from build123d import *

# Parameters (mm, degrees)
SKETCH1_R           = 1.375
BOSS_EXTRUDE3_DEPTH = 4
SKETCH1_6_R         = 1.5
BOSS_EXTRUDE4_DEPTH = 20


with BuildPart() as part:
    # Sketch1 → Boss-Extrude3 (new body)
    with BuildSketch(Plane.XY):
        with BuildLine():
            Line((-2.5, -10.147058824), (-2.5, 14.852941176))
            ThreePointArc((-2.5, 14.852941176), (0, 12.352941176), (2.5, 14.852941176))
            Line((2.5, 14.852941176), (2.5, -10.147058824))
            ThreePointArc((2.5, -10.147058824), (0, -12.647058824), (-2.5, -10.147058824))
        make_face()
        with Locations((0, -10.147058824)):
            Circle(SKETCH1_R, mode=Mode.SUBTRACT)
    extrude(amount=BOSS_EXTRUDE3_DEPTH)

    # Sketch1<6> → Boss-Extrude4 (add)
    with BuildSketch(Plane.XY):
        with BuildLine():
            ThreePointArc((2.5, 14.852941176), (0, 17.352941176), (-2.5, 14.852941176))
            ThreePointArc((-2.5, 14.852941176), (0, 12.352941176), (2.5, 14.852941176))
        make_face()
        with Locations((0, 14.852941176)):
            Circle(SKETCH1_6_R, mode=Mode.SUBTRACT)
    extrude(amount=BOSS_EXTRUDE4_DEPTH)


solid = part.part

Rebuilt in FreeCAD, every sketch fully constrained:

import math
import FreeCAD as App
import Part
import Sketcher

doc = App.newDocument("Part")
body = doc.addObject("PartDesign::Body", "Body")

# Sketch on XY plane
sketch1 = doc.addObject("Sketcher::SketchObject", "Sketch")
body.addObject(sketch1)
sketch1.AttachmentSupport = (doc.XY_Plane, [""])
sketch1.MapMode = "FlatFace"
sketch1.addGeometry(Part.LineSegment(App.Vector(-2.5, 14.9, 0), App.Vector(-2.5, -10.1, 0)), False)
sketch1.addGeometry(Part.ArcOfCircle(Part.Circle(App.Vector(0, -10.1, 0), App.Vector(0, 0, 1), 2.5), math.radians(180), math.radians(360)), False)
sketch1.addGeometry(Part.LineSegment(App.Vector(2.5, -10.1, 0), App.Vector(2.5, 14.9, 0)), False)
sketch1.addGeometry(Part.ArcOfCircle(Part.Circle(App.Vector(0, 14.9, 0), App.Vector(0, 0, 1), 2.5), math.radians(180), math.radians(360)), False)
sketch1.addGeometry(Part.Circle(App.Vector(0, -10.1, 0), App.Vector(0, 0, 1), 1.4), False)
sketch1.addConstraint(Sketcher.Constraint("Tangent", 0, 2, 1, 1))
sketch1.addConstraint(Sketcher.Constraint("Tangent", 1, 2, 2, 1))
sketch1.addConstraint(Sketcher.Constraint("Tangent", 2, 2, 3, 2))
sketch1.addConstraint(Sketcher.Constraint("Tangent", 3, 1, 0, 1))
sketch1.addConstraint(Sketcher.Constraint("Vertical", 0))
sketch1.addConstraint(Sketcher.Constraint("Vertical", 2))
sketch1.addConstraint(Sketcher.Constraint("Coincident", 4, 3, 1, 3))
sketch1.addConstraint(Sketcher.Constraint("PointOnObject", 1, 3, -2))
sketch1.addConstraint(Sketcher.Constraint("Radius", 1, 2.5))
sketch1.addConstraint(Sketcher.Constraint("Diameter", 4, 2.75))
sketch1.addConstraint(Sketcher.Constraint("DistanceY", 0, 2, 0, 1, 25.0))
sketch1.addConstraint(Sketcher.Constraint("DistanceY", 1, 3, -1, 1, 10.147059))
pad1 = doc.addObject("PartDesign::Pad", "Pad")
body.addObject(pad1)
pad1.Profile = sketch1
pad1.Length = 4

# Sketch on XY plane
sketch2 = doc.addObject("Sketcher::SketchObject", "Sketch001")
body.addObject(sketch2)
sketch2.AttachmentSupport = (doc.XY_Plane, [""])
sketch2.MapMode = "FlatFace"
sketch2.addGeometry(Part.Circle(App.Vector(0, 14.9, 0), App.Vector(0, 0, 1), 2.5), False)
sketch2.addGeometry(Part.Circle(App.Vector(0, 14.9, 0), App.Vector(0, 0, 1), 1.5), False)
sketch2.addConstraint(Sketcher.Constraint("Coincident", 1, 3, 0, 3))
sketch2.addConstraint(Sketcher.Constraint("PointOnObject", 0, 3, -2))
sketch2.addConstraint(Sketcher.Constraint("Diameter", 0, 5.0))
sketch2.addConstraint(Sketcher.Constraint("Diameter", 1, 3.0))
sketch2.addConstraint(Sketcher.Constraint("DistanceY", -1, 1, 0, 3, 14.852941))
pad2 = doc.addObject("PartDesign::Pad", "Pad001")
body.addObject(pad2)
pad2.Profile = sketch2
pad2.Length = 20

doc.recompute()
